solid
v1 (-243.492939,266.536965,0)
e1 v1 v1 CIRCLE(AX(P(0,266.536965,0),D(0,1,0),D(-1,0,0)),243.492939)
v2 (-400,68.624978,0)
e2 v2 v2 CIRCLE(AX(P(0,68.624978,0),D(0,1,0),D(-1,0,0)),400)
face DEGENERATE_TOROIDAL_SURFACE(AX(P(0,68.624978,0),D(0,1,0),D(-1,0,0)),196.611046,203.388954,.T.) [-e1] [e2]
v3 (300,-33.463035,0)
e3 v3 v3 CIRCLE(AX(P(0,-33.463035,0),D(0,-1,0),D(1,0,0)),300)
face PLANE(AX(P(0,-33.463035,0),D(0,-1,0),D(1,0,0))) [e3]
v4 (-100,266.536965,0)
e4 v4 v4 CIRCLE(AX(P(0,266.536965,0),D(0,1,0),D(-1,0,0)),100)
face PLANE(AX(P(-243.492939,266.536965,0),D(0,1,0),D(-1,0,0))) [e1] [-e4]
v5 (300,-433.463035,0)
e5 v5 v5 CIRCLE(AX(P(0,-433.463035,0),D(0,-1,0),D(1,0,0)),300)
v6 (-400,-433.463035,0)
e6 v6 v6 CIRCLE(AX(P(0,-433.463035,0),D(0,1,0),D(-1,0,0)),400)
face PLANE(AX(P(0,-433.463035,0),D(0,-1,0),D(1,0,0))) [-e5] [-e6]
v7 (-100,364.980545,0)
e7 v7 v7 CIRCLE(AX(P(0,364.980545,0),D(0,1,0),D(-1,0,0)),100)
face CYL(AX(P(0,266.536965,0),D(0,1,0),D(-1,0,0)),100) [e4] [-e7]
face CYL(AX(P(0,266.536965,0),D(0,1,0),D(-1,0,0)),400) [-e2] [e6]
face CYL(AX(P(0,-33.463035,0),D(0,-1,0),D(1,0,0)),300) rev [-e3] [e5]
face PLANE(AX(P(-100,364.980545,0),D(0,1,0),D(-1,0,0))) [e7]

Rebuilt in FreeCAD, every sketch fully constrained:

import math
import FreeCAD as App
import Part
import Sketcher

doc = App.newDocument("Part")
body = doc.addObject("PartDesign::Body", "Body")

# Sketch on XY plane
sketch1 = body.newObject("Sketcher::SketchObject", "Sketch")
sketch1.AttachmentSupport = (doc.getObject("XY_Plane"), [""])
sketch1.MapMode = "FlatFace"
sketch1.addGeometry([
    Part.LineSegment(App.Vector(-400, -433.463035, 0), App.Vector(0, -433.463035, 0)),  # 0
    Part.LineSegment(App.Vector(0, -433.463035, 0), App.Vector(0, 364.980545, 0)),  # 1
    Part.LineSegment(App.Vector(0, 364.980545, 0), App.Vector(-100, 364.980545, 0)),  # 2
    Part.LineSegment(App.Vector(-100, 364.980545, 0), App.Vector(-100, 266.536965, 0)),  # 3
    Part.LineSegment(App.Vector(-100, 266.536965, 0), App.Vector(-243.492939, 266.536965, 0)),  # 4
    Part.ArcOfCircle(Part.Circle(App.Vector(-196.611046, 68.624978, 0), App.Vector(0, 0, 1), 203.388954), math.radians(103.326725), math.radians(180)),  # 5
    Part.LineSegment(App.Vector(-400, 68.624978, 0), App.Vector(-400, -433.463035, 0)),  # 6
], False)
sketch1.addConstraint([
    Sketcher.Constraint("Coincident", 0, 2, 1, 1),
    Sketcher.Constraint("Coincident", 1, 2, 2, 1),
    Sketcher.Constraint("Coincident", 2, 2, 3, 1),
    Sketcher.Constraint("Coincident", 3, 2, 4, 1),
    Sketcher.Constraint("Coincident", 4, 2, 5, 1),
    Sketcher.Constraint("Tangent", 5, 2, 6, 1),
    Sketcher.Constraint("Coincident", 6, 2, 0, 1),
    Sketcher.Constraint("Horizontal", 0),
    Sketcher.Constraint("Vertical", 1),
    Sketcher.Constraint("Horizontal", 2),
    Sketcher.Constraint("Vertical", 3),
    Sketcher.Constraint("Horizontal", 4),
    Sketcher.Constraint("Vertical", 6),
    Sketcher.Constraint("PointOnObject", 0, 2, -2),
    Sketcher.Constraint("DistanceX", 0, 1, 0, 2, 400.0),
    Sketcher.Constraint("DistanceX", 2, 2, 2, 1, 100.0),
    Sketcher.Constraint("DistanceY", 0, 2, 3, 2, 700.0),
    Sketcher.Constraint("Radius", 5, 203.388954),
    Sketcher.Constraint("DistanceX", 4, 2, 4, 1, 143.492939),
    Sketcher.Constraint("DistanceY", 1, 1, 1, 2, 798.44358),
    Sketcher.Constraint("DistanceY", -1, 1, 5, 3, 68.624978),
])
revolution = body.newObject("PartDesign::Revolution", "Revolution")
revolution.Profile = sketch1
revolution.ReferenceAxis = (sketch1, ["V_Axis"])
revolution.Angle = 360

# Sketch on XZ plane
sketch2 = body.newObject("Sketcher::SketchObject", "Sketch001")
sketch2.AttachmentSupport = (doc.getObject("XZ_Plane"), [""])
sketch2.MapMode = "FlatFace"
sketch2.AttachmentOffset = App.Placement(App.Vector(0, 0, 433.463035), App.Rotation())
sketch2.addGeometry(Part.Circle(App.Vector(0, 0, 0), App.Vector(0, 0, 1), 300), False)
sketch2.addConstraint([
    Sketcher.Constraint("Coincident", 0, 3, -1, 1),
    Sketcher.Constraint("Diameter", 0, 600.0),
])
pocket1 = body.newObject("PartDesign::Pocket", "Pocket")
pocket1.Profile = sketch2
pocket1.Length = 400

doc.recompute()
